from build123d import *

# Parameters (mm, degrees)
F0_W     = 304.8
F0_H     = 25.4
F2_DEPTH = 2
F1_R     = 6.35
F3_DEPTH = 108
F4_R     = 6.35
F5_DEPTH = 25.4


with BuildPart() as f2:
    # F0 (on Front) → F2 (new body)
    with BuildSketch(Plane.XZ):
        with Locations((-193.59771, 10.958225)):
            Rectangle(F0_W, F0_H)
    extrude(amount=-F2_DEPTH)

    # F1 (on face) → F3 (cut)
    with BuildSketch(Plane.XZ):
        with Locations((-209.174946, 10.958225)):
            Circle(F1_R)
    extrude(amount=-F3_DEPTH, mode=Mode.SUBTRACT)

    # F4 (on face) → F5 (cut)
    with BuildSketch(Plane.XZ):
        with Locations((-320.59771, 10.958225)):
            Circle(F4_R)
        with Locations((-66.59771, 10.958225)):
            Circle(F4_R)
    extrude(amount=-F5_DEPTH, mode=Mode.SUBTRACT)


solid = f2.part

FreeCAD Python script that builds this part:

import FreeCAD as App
import Part
import Sketcher
from FreeCAD import Vector
Q = App.Units.Quantity

doc = App.newDocument("Part")
body = doc.addObject("PartDesign::Body", "Body")

# Sketch on XZ plane
sketch1 = body.newObject("Sketcher::SketchObject", "Sketch")
sketch1.AttachmentSupport = (doc.getObject("XZ_Plane"), [""])
sketch1.MapMode = "FlatFace"
sketch1.addGeometry(Part.LineSegment(Vector(-346, 24, 0), Vector(-346, -2, 0)), False)
sketch1.addGeometry(Part.LineSegment(Vector(-346, -2, 0), Vector(-41, -2, 0)), False)
sketch1.addGeometry(Part.LineSegment(Vector(-41, -2, 0), Vector(-41, 24, 0)), False)
sketch1.addGeometry(Part.LineSegment(Vector(-41, 24, 0), Vector(-346, 24, 0)), False)
sketch1.addConstraint(Sketcher.Constraint("Coincident", 0, 2, 1, 1))
sketch1.addConstraint(Sketcher.Constraint("Coincident", 1, 2, 2, 1))
sketch1.addConstraint(Sketcher.Constraint("Coincident", 2, 2, 3, 1))
sketch1.addConstraint(Sketcher.Constraint("Coincident", 3, 2, 0, 1))
sketch1.addConstraint(Sketcher.Constraint("Vertical", 0))
sketch1.addConstraint(Sketcher.Constraint("Horizontal", 1))
sketch1.addConstraint(Sketcher.Constraint("Vertical", 2))
sketch1.addConstraint(Sketcher.Constraint("Horizontal", 3))
sketch1.addConstraint(Sketcher.Constraint("DistanceX", 1, 1, 1, 2, Q("12 in")))
sketch1.addConstraint(Sketcher.Constraint("DistanceY", 0, 2, 0, 1, Q("1 in")))
sketch1.addConstraint(Sketcher.Constraint("DistanceX", 0, 2, -1, 1, Q("345.99771 mm")))
sketch1.addConstraint(Sketcher.Constraint("DistanceY", 0, 2, -1, 1, Q("1.741775 mm")))
pad1 = body.newObject("PartDesign::Pad", "Pad")
pad1.Profile = sketch1
pad1.Length = 2
pad1.Reversed = True

# Sketch on XZ plane
sketch2 = body.newObject("Sketcher::SketchObject", "Sketch001")
sketch2.AttachmentSupport = (doc.getObject("XZ_Plane"), [""])
sketch2.MapMode = "FlatFace"
sketch2.addGeometry(Part.Circle(Vector(-209, 11, 0), Vector(0, 0, 1), 6), False)
sketch2.addConstraint(Sketcher.Constraint("Diameter", 0, Q("0.5 in")))
sketch2.addConstraint(Sketcher.Constraint("DistanceX", 0, 3, -1, 1, Q("209.174946 mm")))
sketch2.addConstraint(Sketcher.Constraint("DistanceY", -1, 1, 0, 3, Q("10.958225 mm")))
pocket1 = body.newObject("PartDesign::Pocket", "Pocket")
pocket1.Profile = sketch2
pocket1.Length = 108

# Sketch on XZ plane
sketch3 = body.newObject("Sketcher::SketchObject", "Sketch002")
sketch3.AttachmentSupport = (doc.getObject("XZ_Plane"), [""])
sketch3.MapMode = "FlatFace"
sketch3.addGeometry(Part.Circle(Vector(-321, 11, 0), Vector(0, 0, 1), 6), False)
sketch3.addGeometry(Part.Circle(Vector(-67, 11, 0), Vector(0, 0, 1), 6), False)
sketch3.addConstraint(Sketcher.Constraint("Equal", 0, 1))
sketch3.addConstraint(Sketcher.Constraint("Horizontal", 0, 3, 1, 3))
sketch3.addConstraint(Sketcher.Constraint("Diameter", 0, Q("0.5 in")))
sketch3.addConstraint(Sketcher.Constraint("DistanceX", 0, 3, 1, 3, Q("10 in")))
sketch3.addConstraint(Sketcher.Constraint("DistanceX", 0, 3, -1, 1, Q("320.59771 mm")))
sketch3.addConstraint(Sketcher.Constraint("DistanceY", -1, 1, 0, 3, Q("10.958225 mm")))
pocket2 = body.newObject("PartDesign::Pocket", "Pocket001")
pocket2.Profile = sketch3
pocket2.Length = Q("1 in")

doc.recompute()
